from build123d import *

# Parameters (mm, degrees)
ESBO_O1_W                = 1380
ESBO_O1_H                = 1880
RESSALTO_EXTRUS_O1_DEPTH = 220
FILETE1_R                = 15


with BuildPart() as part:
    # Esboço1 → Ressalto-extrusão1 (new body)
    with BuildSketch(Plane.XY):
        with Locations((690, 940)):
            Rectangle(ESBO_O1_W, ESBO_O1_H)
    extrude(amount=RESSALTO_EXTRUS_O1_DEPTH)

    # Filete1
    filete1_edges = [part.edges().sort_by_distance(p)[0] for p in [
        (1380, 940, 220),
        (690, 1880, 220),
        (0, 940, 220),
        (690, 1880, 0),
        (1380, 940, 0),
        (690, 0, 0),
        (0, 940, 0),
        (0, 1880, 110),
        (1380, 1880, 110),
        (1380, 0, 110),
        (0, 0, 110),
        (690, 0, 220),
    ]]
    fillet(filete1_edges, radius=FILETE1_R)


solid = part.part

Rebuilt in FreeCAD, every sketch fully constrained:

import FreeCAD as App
import Part
import Sketcher

doc = App.newDocument("Part")
body = doc.addObject("PartDesign::Body", "Body")

sketch1 = doc.addObject("Sketcher::SketchObject", "Sketch")
body.addObject(sketch1)
sketch1.AttachmentSupport = (doc.XY_Plane, [""])
sketch1.MapMode = "FlatFace"
sketch1.addGeometry(Part.LineSegment(App.Vector(0, 1880, 0), App.Vector(0, 0, 0)), False)
sketch1.addGeometry(Part.LineSegment(App.Vector(0, 0, 0), App.Vector(1380, 0, 0)), False)
sketch1.addGeometry(Part.LineSegment(App.Vector(1380, 0, 0), App.Vector(1380, 1880, 0)), False)
sketch1.addGeometry(Part.LineSegment(App.Vector(1380, 1880, 0), App.Vector(0, 1880, 0)), False)
sketch1.addConstraint(Sketcher.Constraint("Coincident", 0, 2, 1, 1))
sketch1.addConstraint(Sketcher.Constraint("Coincident", 1, 2, 2, 1))
sketch1.addConstraint(Sketcher.Constraint("Coincident", 2, 2, 3, 1))
sketch1.addConstraint(Sketcher.Constraint("Coincident", 3, 2, 0, 1))
sketch1.addConstraint(Sketcher.Constraint("Vertical", 0))
sketch1.addConstraint(Sketcher.Constraint("Horizontal", 1))
sketch1.addConstraint(Sketcher.Constraint("Vertical", 2))
sketch1.addConstraint(Sketcher.Constraint("Horizontal", 3))
sketch1.addConstraint(Sketcher.Constraint("Coincident", 0, 2, -1, 1))
sketch1.addConstraint(Sketcher.Constraint("DistanceX", 1, 1, 1, 2, 1380.0))
sketch1.addConstraint(Sketcher.Constraint("DistanceY", 0, 2, 0, 1, 1880.0))
pad1 = doc.addObject("PartDesign::Pad", "Pad")
body.addObject(pad1)
pad1.Profile = sketch1
pad1.Length = 220
doc.recompute()

fillet = doc.addObject("PartDesign::Fillet", "Fillet")
body.addObject(fillet)
fillet.Base = (pad1, ["Edge1"])
fillet.UseAllEdges = True
fillet.Radius = 15

doc.recompute()
